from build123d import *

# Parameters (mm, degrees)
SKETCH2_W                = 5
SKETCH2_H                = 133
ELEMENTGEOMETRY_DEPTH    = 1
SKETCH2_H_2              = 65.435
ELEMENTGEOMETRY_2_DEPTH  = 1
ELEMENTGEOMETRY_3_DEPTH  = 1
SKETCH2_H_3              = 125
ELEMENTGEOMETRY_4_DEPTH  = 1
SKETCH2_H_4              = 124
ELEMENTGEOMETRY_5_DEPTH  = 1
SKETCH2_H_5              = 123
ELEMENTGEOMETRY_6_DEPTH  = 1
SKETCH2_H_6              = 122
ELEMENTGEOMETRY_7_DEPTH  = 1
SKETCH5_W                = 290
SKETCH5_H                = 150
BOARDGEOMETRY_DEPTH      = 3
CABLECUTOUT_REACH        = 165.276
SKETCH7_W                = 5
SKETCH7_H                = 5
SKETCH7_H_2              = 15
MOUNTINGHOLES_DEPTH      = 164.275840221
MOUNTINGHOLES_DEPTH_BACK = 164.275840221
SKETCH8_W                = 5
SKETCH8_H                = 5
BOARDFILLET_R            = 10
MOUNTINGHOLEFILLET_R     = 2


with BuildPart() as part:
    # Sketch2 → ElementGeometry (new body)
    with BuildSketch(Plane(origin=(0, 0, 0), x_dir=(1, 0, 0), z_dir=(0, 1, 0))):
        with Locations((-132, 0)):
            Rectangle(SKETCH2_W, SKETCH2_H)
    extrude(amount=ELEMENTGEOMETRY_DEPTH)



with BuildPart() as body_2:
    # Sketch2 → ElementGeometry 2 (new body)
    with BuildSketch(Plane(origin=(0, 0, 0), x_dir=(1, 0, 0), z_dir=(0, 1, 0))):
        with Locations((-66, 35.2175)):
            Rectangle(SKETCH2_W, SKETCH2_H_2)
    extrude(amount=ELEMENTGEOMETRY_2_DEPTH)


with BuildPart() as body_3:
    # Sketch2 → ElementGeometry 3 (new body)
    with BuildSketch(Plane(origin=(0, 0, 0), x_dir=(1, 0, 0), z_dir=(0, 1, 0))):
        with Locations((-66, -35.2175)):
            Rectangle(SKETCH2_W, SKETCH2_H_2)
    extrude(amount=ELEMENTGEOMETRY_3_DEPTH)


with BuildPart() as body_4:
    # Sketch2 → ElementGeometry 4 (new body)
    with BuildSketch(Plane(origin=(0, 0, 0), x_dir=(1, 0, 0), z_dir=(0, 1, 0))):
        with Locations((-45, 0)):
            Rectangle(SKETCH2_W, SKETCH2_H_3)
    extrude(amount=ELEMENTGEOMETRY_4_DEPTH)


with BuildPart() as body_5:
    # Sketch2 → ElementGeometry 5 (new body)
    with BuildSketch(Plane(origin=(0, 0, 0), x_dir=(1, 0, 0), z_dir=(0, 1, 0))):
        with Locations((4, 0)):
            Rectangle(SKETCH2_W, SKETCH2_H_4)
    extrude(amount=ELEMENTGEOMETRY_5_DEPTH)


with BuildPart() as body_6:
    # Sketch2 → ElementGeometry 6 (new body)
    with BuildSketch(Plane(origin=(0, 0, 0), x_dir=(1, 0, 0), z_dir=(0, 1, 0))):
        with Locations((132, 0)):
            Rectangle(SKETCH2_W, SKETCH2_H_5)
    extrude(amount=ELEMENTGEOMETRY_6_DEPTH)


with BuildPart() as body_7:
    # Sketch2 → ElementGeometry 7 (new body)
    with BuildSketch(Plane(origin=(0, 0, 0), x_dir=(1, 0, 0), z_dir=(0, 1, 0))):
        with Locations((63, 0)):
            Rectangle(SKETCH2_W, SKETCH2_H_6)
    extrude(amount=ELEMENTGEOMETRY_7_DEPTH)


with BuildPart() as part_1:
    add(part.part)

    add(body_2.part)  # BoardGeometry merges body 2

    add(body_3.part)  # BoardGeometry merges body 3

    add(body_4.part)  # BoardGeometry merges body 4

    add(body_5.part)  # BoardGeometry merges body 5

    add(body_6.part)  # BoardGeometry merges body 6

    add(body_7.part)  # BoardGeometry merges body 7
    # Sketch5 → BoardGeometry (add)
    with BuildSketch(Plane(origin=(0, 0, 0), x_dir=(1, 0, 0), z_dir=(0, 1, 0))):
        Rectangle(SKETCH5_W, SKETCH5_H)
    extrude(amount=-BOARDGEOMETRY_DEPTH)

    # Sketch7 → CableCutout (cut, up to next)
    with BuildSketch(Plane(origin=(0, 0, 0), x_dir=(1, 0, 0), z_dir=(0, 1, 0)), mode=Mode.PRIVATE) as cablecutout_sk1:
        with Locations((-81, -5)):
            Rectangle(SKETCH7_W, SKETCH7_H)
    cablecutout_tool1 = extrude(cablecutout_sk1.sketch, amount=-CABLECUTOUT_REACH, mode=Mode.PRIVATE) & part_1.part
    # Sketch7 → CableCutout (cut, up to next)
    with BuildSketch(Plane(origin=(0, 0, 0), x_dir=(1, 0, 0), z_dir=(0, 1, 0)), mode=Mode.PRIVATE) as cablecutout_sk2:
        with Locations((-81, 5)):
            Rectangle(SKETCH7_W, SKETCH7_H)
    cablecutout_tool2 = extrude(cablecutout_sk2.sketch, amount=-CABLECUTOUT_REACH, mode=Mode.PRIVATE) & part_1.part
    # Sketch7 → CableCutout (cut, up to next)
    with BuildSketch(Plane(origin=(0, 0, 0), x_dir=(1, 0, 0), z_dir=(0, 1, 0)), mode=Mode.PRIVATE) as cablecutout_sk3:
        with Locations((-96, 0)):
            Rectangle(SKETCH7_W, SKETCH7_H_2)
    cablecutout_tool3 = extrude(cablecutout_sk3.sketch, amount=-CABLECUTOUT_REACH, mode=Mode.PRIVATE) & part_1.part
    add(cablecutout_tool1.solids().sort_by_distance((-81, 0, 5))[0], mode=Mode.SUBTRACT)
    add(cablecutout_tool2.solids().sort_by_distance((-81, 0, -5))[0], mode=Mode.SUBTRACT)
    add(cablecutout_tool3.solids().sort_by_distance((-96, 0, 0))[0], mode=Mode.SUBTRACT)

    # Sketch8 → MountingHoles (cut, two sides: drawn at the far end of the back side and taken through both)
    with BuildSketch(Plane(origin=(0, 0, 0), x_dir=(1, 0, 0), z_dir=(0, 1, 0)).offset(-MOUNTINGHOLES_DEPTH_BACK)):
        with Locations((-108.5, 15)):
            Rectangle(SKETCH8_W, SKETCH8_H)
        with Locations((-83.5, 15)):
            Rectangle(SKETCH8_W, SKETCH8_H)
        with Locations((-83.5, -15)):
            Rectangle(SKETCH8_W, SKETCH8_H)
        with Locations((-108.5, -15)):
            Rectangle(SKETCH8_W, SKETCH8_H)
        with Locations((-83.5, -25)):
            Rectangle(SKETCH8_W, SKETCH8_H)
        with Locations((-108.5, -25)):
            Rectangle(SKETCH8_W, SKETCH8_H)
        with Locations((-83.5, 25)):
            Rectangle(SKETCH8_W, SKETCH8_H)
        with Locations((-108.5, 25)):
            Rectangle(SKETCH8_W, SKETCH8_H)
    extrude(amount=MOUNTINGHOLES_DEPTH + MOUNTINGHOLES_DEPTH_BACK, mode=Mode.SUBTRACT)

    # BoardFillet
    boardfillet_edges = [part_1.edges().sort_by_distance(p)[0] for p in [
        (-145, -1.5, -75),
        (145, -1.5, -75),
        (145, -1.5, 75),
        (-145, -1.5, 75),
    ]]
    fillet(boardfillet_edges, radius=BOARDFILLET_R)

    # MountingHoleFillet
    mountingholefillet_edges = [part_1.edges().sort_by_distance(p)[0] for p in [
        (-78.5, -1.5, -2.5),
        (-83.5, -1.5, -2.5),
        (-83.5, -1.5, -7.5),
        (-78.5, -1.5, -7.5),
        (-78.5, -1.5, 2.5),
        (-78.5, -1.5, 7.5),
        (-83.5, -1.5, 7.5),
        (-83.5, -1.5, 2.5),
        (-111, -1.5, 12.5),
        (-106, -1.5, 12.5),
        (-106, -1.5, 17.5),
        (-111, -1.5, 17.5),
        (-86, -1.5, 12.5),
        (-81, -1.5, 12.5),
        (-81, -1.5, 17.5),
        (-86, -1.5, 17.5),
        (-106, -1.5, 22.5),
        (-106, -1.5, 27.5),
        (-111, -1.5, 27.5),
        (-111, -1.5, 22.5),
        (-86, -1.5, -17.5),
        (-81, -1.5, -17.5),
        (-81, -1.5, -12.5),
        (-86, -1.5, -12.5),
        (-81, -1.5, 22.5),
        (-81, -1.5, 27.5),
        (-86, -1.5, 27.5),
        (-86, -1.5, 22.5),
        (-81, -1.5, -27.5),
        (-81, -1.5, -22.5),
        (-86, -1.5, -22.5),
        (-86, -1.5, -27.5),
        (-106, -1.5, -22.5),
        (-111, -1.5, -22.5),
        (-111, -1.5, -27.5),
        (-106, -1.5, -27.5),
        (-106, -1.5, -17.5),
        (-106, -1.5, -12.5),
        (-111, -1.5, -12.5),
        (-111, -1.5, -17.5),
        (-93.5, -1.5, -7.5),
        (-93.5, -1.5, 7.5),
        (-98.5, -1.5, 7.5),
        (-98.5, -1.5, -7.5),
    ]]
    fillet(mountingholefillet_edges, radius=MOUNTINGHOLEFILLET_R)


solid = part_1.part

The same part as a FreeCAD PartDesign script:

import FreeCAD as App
import Part
import Sketcher
Q = App.Units.Quantity


def edges_at(feature, points):
    """Names of the edges that pass closest to the given points."""
    edges = feature.Shape.Edges
    near = lambda p: min(range(len(edges)), key=lambda i: edges[i].distToShape(Part.Vertex(*p))[0])
    return sorted({f"Edge{near(p) + 1}" for p in points})


def add_polygon(sketch, points):
    """Adds a closed chain of lines whose ends are joined by coincident constraints."""
    first, n = sketch.GeometryCount, len(points)
    for a, b in zip(points, points[1:] + points[:1]):
        sketch.addGeometry(Part.LineSegment(App.Vector(*a, 0), App.Vector(*b, 0)), False)
    for i in range(n):
        sketch.addConstraint(Sketcher.Constraint("Coincident", first + i, 2, first + (i + 1) % n, 1))

doc = App.newDocument("Part")
body = doc.addObject("PartDesign::Body", "Body")

# Sketch on XZ plane
sketch1 = doc.addObject("Sketcher::SketchObject", "Sketch")
body.addObject(sketch1)
sketch1.AttachmentSupport = (doc.XZ_Plane, [""])
sketch1.MapMode = "FlatFace"
add_polygon(sketch1, [(-134, -66), (-134, 66), (-130, 66), (-130, -66)])  # lines 0-3
sketch1.addConstraint(Sketcher.Constraint("Vertical", 0))
sketch1.addConstraint(Sketcher.Constraint("Horizontal", 1))
sketch1.addConstraint(Sketcher.Constraint("Vertical", 2))
sketch1.addConstraint(Sketcher.Constraint("Horizontal", 3))
sketch1.addConstraint(Sketcher.Constraint("DistanceX", 1, 1, 1, 2, Q("5 mm")))
sketch1.addConstraint(Sketcher.Constraint("DistanceY", 0, 1, 0, 2, Q("133 mm")))
sketch1.addConstraint(Sketcher.Constraint("DistanceX", 0, 2, -1, 1, Q("134.5 mm")))
sketch1.addConstraint(Sketcher.Constraint("DistanceY", -1, 1, 0, 2, Q("66.5 mm")))
pad1 = doc.addObject("PartDesign::Pad", "Pad")
body.addObject(pad1)
pad1.Profile = sketch1
pad1.Length = 1
pad1.Reversed = True
body2 = doc.addObject("PartDesign::Body", "Body001")

# Sketch on XZ plane
sketch2 = doc.addObject("Sketcher::SketchObject", "Sketch001")
body2.addObject(sketch2)
sketch2.AttachmentSupport = (doc.getObject("XZ_Plane001"), [""])
sketch2.MapMode = "FlatFace"
add_polygon(sketch2, [(-68, -68), (-68, -2), (-64, -2), (-64, -68)])  # lines 0-3
sketch2.addConstraint(Sketcher.Constraint("Vertical", 0))
sketch2.addConstraint(Sketcher.Constraint("Horizontal", 1))
sketch2.addConstraint(Sketcher.Constraint("Vertical", 2))
sketch2.addConstraint(Sketcher.Constraint("Horizontal", 3))
sketch2.addConstraint(Sketcher.Constraint("DistanceX", 1, 1, 1, 2, Q("5 mm")))
sketch2.addConstraint(Sketcher.Constraint("DistanceX", 0, 2, -1, 1, Q("68.5 mm")))
sketch2.addConstraint(Sketcher.Constraint("DistanceY", 0, 2, -1, 1, Q("2.5 mm")))
sketch2.addConstraint(Sketcher.Constraint("DistanceY", 0, 1, 0, 2, Q("65.435 mm")))
pad2 = doc.addObject("PartDesign::Pad", "Pad001")
body2.addObject(pad2)
pad2.Profile = sketch2
pad2.Length = 1
pad2.Reversed = True
body3 = doc.addObject("PartDesign::Body", "Body002")

# Sketch on XZ plane
sketch3 = doc.addObject("Sketcher::SketchObject", "Sketch002")
body3.addObject(sketch3)
sketch3.AttachmentSupport = (doc.getObject("XZ_Plane002"), [""])
sketch3.MapMode = "FlatFace"
add_polygon(sketch3, [(-68, 2), (-68, 68), (-64, 68), (-64, 2)])  # lines 0-3
sketch3.addConstraint(Sketcher.Constraint("Vertical", 0))
sketch3.addConstraint(Sketcher.Constraint("Horizontal", 1))
sketch3.addConstraint(Sketcher.Constraint("Vertical", 2))
sketch3.addConstraint(Sketcher.Constraint("Horizontal", 3))
sketch3.addConstraint(Sketcher.Constraint("DistanceX", 1, 1, 1, 2, Q("5 mm")))
sketch3.addConstraint(Sketcher.Constraint("DistanceX", 0, 2, -1, 1, Q("68.5 mm")))
sketch3.addConstraint(Sketcher.Constraint("DistanceY", -1, 1, 2, 2, Q("2.5 mm")))
sketch3.addConstraint(Sketcher.Constraint("DistanceY", 0, 1, 0, 2, Q("65.435 mm")))
pad3 = doc.addObject("PartDesign::Pad", "Pad002")
body3.addObject(pad3)
pad3.Profile = sketch3
pad3.Length = 1
pad3.Reversed = True
body4 = doc.addObject("PartDesign::Body", "Body003")

# Sketch on XZ plane
sketch4 = doc.addObject("Sketcher::SketchObject", "Sketch003")
body4.addObject(sketch4)
sketch4.AttachmentSupport = (doc.getObject("XZ_Plane003"), [""])
sketch4.MapMode = "FlatFace"
add_polygon(sketch4, [(-48, -62), (-48, 62), (-42, 62), (-42, -62)])  # lines 0-3
sketch4.addConstraint(Sketcher.Constraint("Vertical", 0))
sketch4.addConstraint(Sketcher.Constraint("Horizontal", 1))
sketch4.addConstraint(Sketcher.Constraint("Vertical", 2))
sketch4.addConstraint(Sketcher.Constraint("Horizontal", 3))
sketch4.addConstraint(Sketcher.Constraint("DistanceX", 1, 1, 1, 2, Q("5 mm")))
sketch4.addConstraint(Sketcher.Constraint("DistanceY", 0, 1, 0, 2, Q("125 mm")))
sketch4.addConstraint(Sketcher.Constraint("DistanceX", 0, 2, -1, 1, Q("47.5 mm")))
sketch4.addConstraint(Sketcher.Constraint("DistanceY", -1, 1, 0, 2, Q("62.5 mm")))
pad4 = doc.addObject("PartDesign::Pad", "Pad003")
body4.addObject(pad4)
pad4.Profile = sketch4
pad4.Length = 1
pad4.Reversed = True
body5 = doc.addObject("PartDesign::Body", "Body004")

# Sketch on XZ plane
sketch5 = doc.addObject("Sketcher::SketchObject", "Sketch004")
body5.addObject(sketch5)
sketch5.AttachmentSupport = (doc.getObject("XZ_Plane004"), [""])
sketch5.MapMode = "FlatFace"
add_polygon(sketch5, [(2, -62), (2, 62), (6, 62), (6, -62)])  # lines 0-3
sketch5.addConstraint(Sketcher.Constraint("Vertical", 0))
sketch5.addConstraint(Sketcher.Constraint("Horizontal", 1))
sketch5.addConstraint(Sketcher.Constraint("Vertical", 2))
sketch5.addConstraint(Sketcher.Constraint("Horizontal", 3))
sketch5.addConstraint(Sketcher.Constraint("DistanceX", 1, 1, 1, 2, Q("5 mm")))
sketch5.addConstraint(Sketcher.Constraint("DistanceY", 0, 1, 0, 2, Q("124 mm")))
sketch5.addConstraint(Sketcher.Constraint("DistanceY", -1, 1, 0, 2, Q("62 mm")))
sketch5.addConstraint(Sketcher.Constraint("DistanceX", -1, 1, 0, 2, Q("1.5 mm")))
pad5 = doc.addObject("PartDesign::Pad", "Pad004")
body5.addObject(pad5)
pad5.Profile = sketch5
pad5.Length = 1
pad5.Reversed = True
body6 = doc.addObject("PartDesign::Body", "Body005")

# Sketch on XZ plane
sketch6 = doc.addObject("Sketcher::SketchObject", "Sketch005")
body6.addObject(sketch6)
sketch6.AttachmentSupport = (doc.getObject("XZ_Plane005"), [""])
sketch6.MapMode = "FlatFace"
add_polygon(sketch6, [(130, -62), (130, 62), (134, 62), (134, -62)])  # lines 0-3
sketch6.addConstraint(Sketcher.Constraint("Vertical", 0))
sketch6.addConstraint(Sketcher.Constraint("Horizontal", 1))
sketch6.addConstraint(Sketcher.Constraint("Vertical", 2))
sketch6.addConstraint(Sketcher.Constraint("Horizontal", 3))
sketch6.addConstraint(Sketcher.Constraint("DistanceX", 1, 1, 1, 2, Q("5 mm")))
sketch6.addConstraint(Sketcher.Constraint("DistanceY", 0, 1, 0, 2, Q("123 mm")))
sketch6.addConstraint(Sketcher.Constraint("DistanceX", -1, 1, 0, 2, Q("129.5 mm")))
sketch6.addConstraint(Sketcher.Constraint("DistanceY", -1, 1, 0, 2, Q("61.5 mm")))
pad6 = doc.addObject("PartDesign::Pad", "Pad005")
body6.addObject(pad6)
pad6.Profile = sketch6
pad6.Length = 1
pad6.Reversed = True
body7 = doc.addObject("PartDesign::Body", "Body006")

# Sketch on XZ plane
sketch7 = doc.addObject("Sketcher::SketchObject", "Sketch006")
body7.addObject(sketch7)
sketch7.AttachmentSupport = (doc.getObject("XZ_Plane006"), [""])
sketch7.MapMode = "FlatFace"
add_polygon(sketch7, [(60, -61), (60, 61), (66, 61), (66, -61)])  # lines 0-3
sketch7.addConstraint(Sketcher.Constraint("Vertical", 0))
sketch7.addConstraint(Sketcher.Constraint("Horizontal", 1))
sketch7.addConstraint(Sketcher.Constraint("Vertical", 2))
sketch7.addConstraint(Sketcher.Constraint("Horizontal", 3))
sketch7.addConstraint(Sketcher.Constraint("DistanceX", 1, 1, 1, 2, Q("5 mm")))
sketch7.addConstraint(Sketcher.Constraint("DistanceY", 0, 1, 0, 2, Q("122 mm")))
sketch7.addConstraint(Sketcher.Constraint("DistanceY", -1, 1, 0, 2, Q("61 mm")))
sketch7.addConstraint(Sketcher.Constraint("DistanceX", -1, 1, 0, 2, Q("60.5 mm")))
pad7 = doc.addObject("PartDesign::Pad", "Pad006")
body7.addObject(pad7)
pad7.Profile = sketch7
pad7.Length = 1
pad7.Reversed = True
body.AllowCompound = True
doc.recompute()

boolean = doc.addObject("PartDesign::Boolean", "Boolean")
body.addObject(boolean)
boolean.Type = "Fuse"
boolean.addObjects([body2])
doc.recompute()

boolean2 = doc.addObject("PartDesign::Boolean", "Boolean001")
body.addObject(boolean2)
boolean2.Type = "Fuse"
boolean2.addObjects([body3])
doc.recompute()

boolean3 = doc.addObject("PartDesign::Boolean", "Boolean002")
body.addObject(boolean3)
boolean3.Type = "Fuse"
boolean3.addObjects([body4])
doc.recompute()

boolean4 = doc.addObject("PartDesign::Boolean", "Boolean003")
body.addObject(boolean4)
boolean4.Type = "Fuse"
boolean4.addObjects([body5])
doc.recompute()

boolean5 = doc.addObject("PartDesign::Boolean", "Boolean004")
body.addObject(boolean5)
boolean5.Type = "Fuse"
boolean5.addObjects([body6])
doc.recompute()

boolean6 = doc.addObject("PartDesign::Boolean", "Boolean005")
body.addObject(boolean6)
boolean6.Type = "Fuse"
boolean6.addObjects([body7])

# Sketch on XZ plane
sketch8 = doc.addObject("Sketcher::SketchObject", "Sketch007")
body.addObject(sketch8)
sketch8.AttachmentSupport = (doc.XZ_Plane, [""])
sketch8.MapMode = "FlatFace"
add_polygon(sketch8, [(-145, -75), (-145, 75), (145, 75), (145, -75)])  # lines 0-3
sketch8.addConstraint(Sketcher.Constraint("Vertical", 0))
sketch8.addConstraint(Sketcher.Constraint("Horizontal", 1))
sketch8.addConstraint(Sketcher.Constraint("Vertical", 2))
sketch8.addConstraint(Sketcher.Constraint("Horizontal", 3))
sketch8.addConstraint(Sketcher.Constraint("Symmetric", 0, 2, 2, 2, -1, 1))
sketch8.addConstraint(Sketcher.Constraint("DistanceX", 1, 1, 1, 2, Q("290 mm")))
sketch8.addConstraint(Sketcher.Constraint("DistanceY", 0, 1, 0, 2, Q("150 mm")))
pad8 = doc.addObject("PartDesign::Pad", "Pad007")
body.addObject(pad8)
pad8.Profile = sketch8
pad8.Length = 3

# Sketch on XZ plane
sketch9 = doc.addObject("Sketcher::SketchObject", "Sketch008")
body.addObject(sketch9)
sketch9.AttachmentSupport = (doc.XZ_Plane, [""])
sketch9.MapMode = "FlatFace"
add_polygon(sketch9, [(-84, 2), (-84, 8), (-78, 8), (-78, 2)])  # lines 0-3
sketch9.addConstraint(Sketcher.Constraint("Vertical", 0))
sketch9.addConstraint(Sketcher.Constraint("Horizontal", 1))
sketch9.addConstraint(Sketcher.Constraint("Vertical", 2))
sketch9.addConstraint(Sketcher.Constraint("Horizontal", 3))
sketch9.addConstraint(Sketcher.Constraint("Equal", 3, 0))
sketch9.addConstraint(Sketcher.Constraint("DistanceX", 1, 1, 1, 2, Q("5 mm")))
sketch9.addConstraint(Sketcher.Constraint("DistanceX", 0, 2, -1, 1, Q("83.5 mm")))
sketch9.addConstraint(Sketcher.Constraint("DistanceY", -1, 1, 0, 2, Q("7.5 mm")))
pocket1 = doc.addObject("PartDesign::Pocket", "Pocket")
body.addObject(pocket1)
pocket1.Profile = sketch9
pocket1.Type = "UpToFirst"
pocket1.Reversed = True

# Sketch on XZ plane
sketch10 = doc.addObject("Sketcher::SketchObject", "Sketch009")
body.addObject(sketch10)
sketch10.AttachmentSupport = (doc.XZ_Plane, [""])
sketch10.MapMode = "FlatFace"
add_polygon(sketch10, [(-84, -8), (-84, -2), (-78, -2), (-78, -8)])  # lines 0-3
sketch10.addConstraint(Sketcher.Constraint("Vertical", 0))
sketch10.addConstraint(Sketcher.Constraint("Horizontal", 1))
sketch10.addConstraint(Sketcher.Constraint("Vertical", 2))
sketch10.addConstraint(Sketcher.Constraint("Horizontal", 3))
sketch10.addConstraint(Sketcher.Constraint("Equal", 3, 0))
sketch10.addConstraint(Sketcher.Constraint("DistanceX", 1, 1, 1, 2, Q("5 mm")))
sketch10.addConstraint(Sketcher.Constraint("DistanceX", 0, 2, -1, 1, Q("83.5 mm")))
sketch10.addConstraint(Sketcher.Constraint("DistanceY", 0, 2, -1, 1, Q("2.5 mm")))
pocket2 = doc.addObject("PartDesign::Pocket", "Pocket001")
body.addObject(pocket2)
pocket2.Profile = sketch10
pocket2.Type = "UpToFirst"
pocket2.Reversed = True

# Sketch on XZ plane
sketch11 = doc.addObject("Sketcher::SketchObject", "Sketch010")
body.addObject(sketch11)
sketch11.AttachmentSupport = (doc.XZ_Plane, [""])
sketch11.MapMode = "FlatFace"
add_polygon(sketch11, [(-98, -8), (-98, 8), (-94, 8), (-94, -8)])  # lines 0-3
sketch11.addConstraint(Sketcher.Constraint("Vertical", 0))
sketch11.addConstraint(Sketcher.Constraint("Horizontal", 1))
sketch11.addConstraint(Sketcher.Constraint("Vertical", 2))
sketch11.addConstraint(Sketcher.Constraint("Horizontal", 3))
sketch11.addConstraint(Sketcher.Constraint("DistanceX", 1, 1, 1, 2, Q("5 mm")))
sketch11.addConstraint(Sketcher.Constraint("DistanceY", 0, 1, 0, 2, Q("15 mm")))
sketch11.addConstraint(Sketcher.Constraint("DistanceX", 0, 2, -1, 1, Q("98.5 mm")))
sketch11.addConstraint(Sketcher.Constraint("DistanceY", -1, 1, 0, 2, Q("7.5 mm")))
pocket3 = doc.addObject("PartDesign::Pocket", "Pocket002")
body.addObject(pocket3)
pocket3.Profile = sketch11
pocket3.Type = "UpToFirst"
pocket3.Reversed = True

# Sketch on XZ plane
sketch12 = doc.addObject("Sketcher::SketchObject", "Sketch011")
body.addObject(sketch12)
sketch12.AttachmentSupport = (doc.XZ_Plane, [""])
sketch12.MapMode = "FlatFace"
add_polygon(sketch12, [(-111, -18), (-111, -12), (-106, -12), (-106, -18)])  # lines 0-3
add_polygon(sketch12, [(-86, -18), (-86, -12), (-81, -12), (-81, -18)])  # lines 4-7
add_polygon(sketch12, [(-86, 12), (-86, 18), (-81, 18), (-81, 12)])  # lines 8-11
add_polygon(sketch12, [(-111, 12), (-111, 18), (-106, 18), (-106, 12)])  # lines 12-15
add_polygon(sketch12, [(-86, 22), (-86, 28), (-81, 28), (-81, 22)])  # lines 16-19
add_polygon(sketch12, [(-111, 22), (-111, 28), (-106, 28), (-106, 22)])  # lines 20-23
add_polygon(sketch12, [(-86, -28), (-86, -22), (-81, -22), (-81, -28)])  # lines 24-27
add_polygon(sketch12, [(-111, -28), (-111, -22), (-106, -22), (-106, -28)])  # lines 28-31
sketch12.addConstraint(Sketcher.Constraint("Vertical", 0))
sketch12.addConstraint(Sketcher.Constraint("Horizontal", 1))
sketch12.addConstraint(Sketcher.Constraint("Vertical", 2))
sketch12.addConstraint(Sketcher.Constraint("Horizontal", 3))
sketch12.addConstraint(Sketcher.Constraint("Vertical", 4))
sketch12.addConstraint(Sketcher.Constraint("Horizontal", 5))
sketch12.addConstraint(Sketcher.Constraint("Vertical", 6))
sketch12.addConstraint(Sketcher.Constraint("Horizontal", 7))
sketch12.addConstraint(Sketcher.Constraint("Vertical", 8))
sketch12.addConstraint(Sketcher.Constraint("Horizontal", 9))
sketch12.addConstraint(Sketcher.Constraint("Vertical", 10))
sketch12.addConstraint(Sketcher.Constraint("Horizontal", 11))
sketch12.addConstraint(Sketcher.Constraint("Vertical", 12))
sketch12.addConstraint(Sketcher.Constraint("Horizontal", 13))
sketch12.addConstraint(Sketcher.Constraint("Vertical", 14))
sketch12.addConstraint(Sketcher.Constraint("Horizontal", 15))
sketch12.addConstraint(Sketcher.Constraint("Vertical", 16))
sketch12.addConstraint(Sketcher.Constraint("Horizontal", 17))
sketch12.addConstraint(Sketcher.Constraint("Vertical", 18))
sketch12.addConstraint(Sketcher.Constraint("Horizontal", 19))
sketch12.addConstraint(Sketcher.Constraint("Vertical", 20))
sketch12.addConstraint(Sketcher.Constraint("Horizontal", 21))
sketch12.addConstraint(Sketcher.Constraint("Vertical", 22))
sketch12.addConstraint(Sketcher.Constraint("Horizontal", 23))
sketch12.addConstraint(Sketcher.Constraint("Vertical", 24))
sketch12.addConstraint(Sketcher.Constraint("Horizontal", 25))
sketch12.addConstraint(Sketcher.Constraint("Vertical", 26))
sketch12.addConstraint(Sketcher.Constraint("Horizontal", 27))
sketch12.addConstraint(Sketcher.Constraint("Vertical", 28))
sketch12.addConstraint(Sketcher.Constraint("Horizontal", 29))
sketch12.addConstraint(Sketcher.Constraint("Vertical", 30))
sketch12.addConstraint(Sketcher.Constraint("Horizontal", 31))
sketch12.addConstraint(Sketcher.Constraint("Symmetric", 7, 2, 8, 2, -1))
sketch12.addConstraint(Sketcher.Constraint("Symmetric", 5, 2, 10, 2, -1))
sketch12.addConstraint(Sketcher.Constraint("Symmetric", 3, 2, 12, 2, -1))
sketch12.addConstraint(Sketcher.Constraint("Symmetric", 1, 2, 14, 2, -1))
sketch12.addConstraint(Sketcher.Constraint("Symmetric", 19, 2, 24, 2, -1))
sketch12.addConstraint(Sketcher.Constraint("Symmetric", 17, 2, 26, 2, -1))
sketch12.addConstraint(Sketcher.Constraint("Symmetric", 23, 2, 28, 2, -1))
sketch12.addConstraint(Sketcher.Constraint("Symmetric", 21, 2, 30, 2, -1))
sketch12.addConstraint(Sketcher.Constraint("Horizontal", 1, 2, 4, 2))
sketch12.addConstraint(Sketcher.Constraint("Horizontal", 3, 2, 6, 2))
sketch12.addConstraint(Sketcher.Constraint("Horizontal", 17, 2, 20, 2))
sketch12.addConstraint(Sketcher.Constraint("Horizontal", 19, 2, 22, 2))
sketch12.addConstraint(Sketcher.Constraint("Vertical", 11, 2, 16, 2))
sketch12.addConstraint(Sketcher.Constraint("Vertical", 10, 2, 17, 2))
sketch12.addConstraint(Sketcher.Constraint("Vertical", 15, 2, 20, 2))
sketch12.addConstraint(Sketcher.Constraint("Vertical", 14, 2, 21, 2))
sketch12.addConstraint(Sketcher.Constraint("Equal", 3, 5))
sketch12.addConstraint(Sketcher.Constraint("Equal", 31, 0))
sketch12.addConstraint(Sketcher.Constraint("Equal", 14, 16))
sketch12.addConstraint(Sketcher.Constraint("DistanceX", 1, 1, 1, 2, Q("5 mm")))
sketch12.addConstraint(Sketcher.Constraint("DistanceX", 0, 2, -1, 1, Q("111 mm")))
sketch12.addConstraint(Sketcher.Constraint("DistanceX", 4, 2, -1, 1, Q("86 mm")))
sketch12.addConstraint(Sketcher.Constraint("DistanceY", 4, 2, 8, 2, Q("30 mm")))
sketch12.addConstraint(Sketcher.Constraint("DistanceY", 8, 2, 16, 2, Q("10 mm")))
pocket4 = doc.addObject("PartDesign::Pocket", "Pocket003")
body.addObject(pocket4)
pocket4.Profile = sketch12
pocket4.Type = "ThroughAll"
pocket4.Midplane = True
doc.recompute()

fillet = doc.addObject("PartDesign::Fillet", "Fillet")
body.addObject(fillet)
fillet.Base = (pocket4, edges_at(pocket4, [
    (-145, -1.5, -75),
    (145, -1.5, -75),
    (145, -1.5, 75),
    (-145, -1.5, 75),
]))
fillet.Radius = 10
doc.recompute()

fillet2 = doc.addObject("PartDesign::Fillet", "Fillet001")
body.addObject(fillet2)
fillet2.Base = (fillet, edges_at(fillet, [
    (-78.5, -1.5, -2.5),
    (-83.5, -1.5, -2.5),
    (-83.5, -1.5, -7.5),
    (-78.5, -1.5, -7.5),
    (-78.5, -1.5, 2.5),
    (-78.5, -1.5, 7.5),
    (-83.5, -1.5, 7.5),
    (-83.5, -1.5, 2.5),
    (-111, -1.5, 12.5),
    (-106, -1.5, 12.5),
    (-106, -1.5, 17.5),
    (-111, -1.5, 17.5),
    (-86, -1.5, 12.5),
    (-81, -1.5, 12.5),
    (-81, -1.5, 17.5),
    (-86, -1.5, 17.5),
    (-106, -1.5, 22.5),
    (-106, -1.5, 27.5),
    (-111, -1.5, 27.5),
    (-111, -1.5, 22.5),
    (-86, -1.5, -17.5),
    (-81, -1.5, -17.5),
    (-81, -1.5, -12.5),
    (-86, -1.5, -12.5),
    (-81, -1.5, 22.5),
    (-81, -1.5, 27.5),
    (-86, -1.5, 27.5),
    (-86, -1.5, 22.5),
    (-81, -1.5, -27.5),
    (-81, -1.5, -22.5),
    (-86, -1.5, -22.5),
    (-86, -1.5, -27.5),
    (-106, -1.5, -22.5),
    (-111, -1.5, -22.5),
    (-111, -1.5, -27.5),
    (-106, -1.5, -27.5),
    (-106, -1.5, -17.5),
    (-106, -1.5, -12.5),
    (-111, -1.5, -12.5),
    (-111, -1.5, -17.5),
    (-93.5, -1.5, -7.5),
    (-93.5, -1.5, 7.5),
    (-98.5, -1.5, 7.5),
    (-98.5, -1.5, -7.5),
]))
fillet2.Radius = 2

doc.recompute()
